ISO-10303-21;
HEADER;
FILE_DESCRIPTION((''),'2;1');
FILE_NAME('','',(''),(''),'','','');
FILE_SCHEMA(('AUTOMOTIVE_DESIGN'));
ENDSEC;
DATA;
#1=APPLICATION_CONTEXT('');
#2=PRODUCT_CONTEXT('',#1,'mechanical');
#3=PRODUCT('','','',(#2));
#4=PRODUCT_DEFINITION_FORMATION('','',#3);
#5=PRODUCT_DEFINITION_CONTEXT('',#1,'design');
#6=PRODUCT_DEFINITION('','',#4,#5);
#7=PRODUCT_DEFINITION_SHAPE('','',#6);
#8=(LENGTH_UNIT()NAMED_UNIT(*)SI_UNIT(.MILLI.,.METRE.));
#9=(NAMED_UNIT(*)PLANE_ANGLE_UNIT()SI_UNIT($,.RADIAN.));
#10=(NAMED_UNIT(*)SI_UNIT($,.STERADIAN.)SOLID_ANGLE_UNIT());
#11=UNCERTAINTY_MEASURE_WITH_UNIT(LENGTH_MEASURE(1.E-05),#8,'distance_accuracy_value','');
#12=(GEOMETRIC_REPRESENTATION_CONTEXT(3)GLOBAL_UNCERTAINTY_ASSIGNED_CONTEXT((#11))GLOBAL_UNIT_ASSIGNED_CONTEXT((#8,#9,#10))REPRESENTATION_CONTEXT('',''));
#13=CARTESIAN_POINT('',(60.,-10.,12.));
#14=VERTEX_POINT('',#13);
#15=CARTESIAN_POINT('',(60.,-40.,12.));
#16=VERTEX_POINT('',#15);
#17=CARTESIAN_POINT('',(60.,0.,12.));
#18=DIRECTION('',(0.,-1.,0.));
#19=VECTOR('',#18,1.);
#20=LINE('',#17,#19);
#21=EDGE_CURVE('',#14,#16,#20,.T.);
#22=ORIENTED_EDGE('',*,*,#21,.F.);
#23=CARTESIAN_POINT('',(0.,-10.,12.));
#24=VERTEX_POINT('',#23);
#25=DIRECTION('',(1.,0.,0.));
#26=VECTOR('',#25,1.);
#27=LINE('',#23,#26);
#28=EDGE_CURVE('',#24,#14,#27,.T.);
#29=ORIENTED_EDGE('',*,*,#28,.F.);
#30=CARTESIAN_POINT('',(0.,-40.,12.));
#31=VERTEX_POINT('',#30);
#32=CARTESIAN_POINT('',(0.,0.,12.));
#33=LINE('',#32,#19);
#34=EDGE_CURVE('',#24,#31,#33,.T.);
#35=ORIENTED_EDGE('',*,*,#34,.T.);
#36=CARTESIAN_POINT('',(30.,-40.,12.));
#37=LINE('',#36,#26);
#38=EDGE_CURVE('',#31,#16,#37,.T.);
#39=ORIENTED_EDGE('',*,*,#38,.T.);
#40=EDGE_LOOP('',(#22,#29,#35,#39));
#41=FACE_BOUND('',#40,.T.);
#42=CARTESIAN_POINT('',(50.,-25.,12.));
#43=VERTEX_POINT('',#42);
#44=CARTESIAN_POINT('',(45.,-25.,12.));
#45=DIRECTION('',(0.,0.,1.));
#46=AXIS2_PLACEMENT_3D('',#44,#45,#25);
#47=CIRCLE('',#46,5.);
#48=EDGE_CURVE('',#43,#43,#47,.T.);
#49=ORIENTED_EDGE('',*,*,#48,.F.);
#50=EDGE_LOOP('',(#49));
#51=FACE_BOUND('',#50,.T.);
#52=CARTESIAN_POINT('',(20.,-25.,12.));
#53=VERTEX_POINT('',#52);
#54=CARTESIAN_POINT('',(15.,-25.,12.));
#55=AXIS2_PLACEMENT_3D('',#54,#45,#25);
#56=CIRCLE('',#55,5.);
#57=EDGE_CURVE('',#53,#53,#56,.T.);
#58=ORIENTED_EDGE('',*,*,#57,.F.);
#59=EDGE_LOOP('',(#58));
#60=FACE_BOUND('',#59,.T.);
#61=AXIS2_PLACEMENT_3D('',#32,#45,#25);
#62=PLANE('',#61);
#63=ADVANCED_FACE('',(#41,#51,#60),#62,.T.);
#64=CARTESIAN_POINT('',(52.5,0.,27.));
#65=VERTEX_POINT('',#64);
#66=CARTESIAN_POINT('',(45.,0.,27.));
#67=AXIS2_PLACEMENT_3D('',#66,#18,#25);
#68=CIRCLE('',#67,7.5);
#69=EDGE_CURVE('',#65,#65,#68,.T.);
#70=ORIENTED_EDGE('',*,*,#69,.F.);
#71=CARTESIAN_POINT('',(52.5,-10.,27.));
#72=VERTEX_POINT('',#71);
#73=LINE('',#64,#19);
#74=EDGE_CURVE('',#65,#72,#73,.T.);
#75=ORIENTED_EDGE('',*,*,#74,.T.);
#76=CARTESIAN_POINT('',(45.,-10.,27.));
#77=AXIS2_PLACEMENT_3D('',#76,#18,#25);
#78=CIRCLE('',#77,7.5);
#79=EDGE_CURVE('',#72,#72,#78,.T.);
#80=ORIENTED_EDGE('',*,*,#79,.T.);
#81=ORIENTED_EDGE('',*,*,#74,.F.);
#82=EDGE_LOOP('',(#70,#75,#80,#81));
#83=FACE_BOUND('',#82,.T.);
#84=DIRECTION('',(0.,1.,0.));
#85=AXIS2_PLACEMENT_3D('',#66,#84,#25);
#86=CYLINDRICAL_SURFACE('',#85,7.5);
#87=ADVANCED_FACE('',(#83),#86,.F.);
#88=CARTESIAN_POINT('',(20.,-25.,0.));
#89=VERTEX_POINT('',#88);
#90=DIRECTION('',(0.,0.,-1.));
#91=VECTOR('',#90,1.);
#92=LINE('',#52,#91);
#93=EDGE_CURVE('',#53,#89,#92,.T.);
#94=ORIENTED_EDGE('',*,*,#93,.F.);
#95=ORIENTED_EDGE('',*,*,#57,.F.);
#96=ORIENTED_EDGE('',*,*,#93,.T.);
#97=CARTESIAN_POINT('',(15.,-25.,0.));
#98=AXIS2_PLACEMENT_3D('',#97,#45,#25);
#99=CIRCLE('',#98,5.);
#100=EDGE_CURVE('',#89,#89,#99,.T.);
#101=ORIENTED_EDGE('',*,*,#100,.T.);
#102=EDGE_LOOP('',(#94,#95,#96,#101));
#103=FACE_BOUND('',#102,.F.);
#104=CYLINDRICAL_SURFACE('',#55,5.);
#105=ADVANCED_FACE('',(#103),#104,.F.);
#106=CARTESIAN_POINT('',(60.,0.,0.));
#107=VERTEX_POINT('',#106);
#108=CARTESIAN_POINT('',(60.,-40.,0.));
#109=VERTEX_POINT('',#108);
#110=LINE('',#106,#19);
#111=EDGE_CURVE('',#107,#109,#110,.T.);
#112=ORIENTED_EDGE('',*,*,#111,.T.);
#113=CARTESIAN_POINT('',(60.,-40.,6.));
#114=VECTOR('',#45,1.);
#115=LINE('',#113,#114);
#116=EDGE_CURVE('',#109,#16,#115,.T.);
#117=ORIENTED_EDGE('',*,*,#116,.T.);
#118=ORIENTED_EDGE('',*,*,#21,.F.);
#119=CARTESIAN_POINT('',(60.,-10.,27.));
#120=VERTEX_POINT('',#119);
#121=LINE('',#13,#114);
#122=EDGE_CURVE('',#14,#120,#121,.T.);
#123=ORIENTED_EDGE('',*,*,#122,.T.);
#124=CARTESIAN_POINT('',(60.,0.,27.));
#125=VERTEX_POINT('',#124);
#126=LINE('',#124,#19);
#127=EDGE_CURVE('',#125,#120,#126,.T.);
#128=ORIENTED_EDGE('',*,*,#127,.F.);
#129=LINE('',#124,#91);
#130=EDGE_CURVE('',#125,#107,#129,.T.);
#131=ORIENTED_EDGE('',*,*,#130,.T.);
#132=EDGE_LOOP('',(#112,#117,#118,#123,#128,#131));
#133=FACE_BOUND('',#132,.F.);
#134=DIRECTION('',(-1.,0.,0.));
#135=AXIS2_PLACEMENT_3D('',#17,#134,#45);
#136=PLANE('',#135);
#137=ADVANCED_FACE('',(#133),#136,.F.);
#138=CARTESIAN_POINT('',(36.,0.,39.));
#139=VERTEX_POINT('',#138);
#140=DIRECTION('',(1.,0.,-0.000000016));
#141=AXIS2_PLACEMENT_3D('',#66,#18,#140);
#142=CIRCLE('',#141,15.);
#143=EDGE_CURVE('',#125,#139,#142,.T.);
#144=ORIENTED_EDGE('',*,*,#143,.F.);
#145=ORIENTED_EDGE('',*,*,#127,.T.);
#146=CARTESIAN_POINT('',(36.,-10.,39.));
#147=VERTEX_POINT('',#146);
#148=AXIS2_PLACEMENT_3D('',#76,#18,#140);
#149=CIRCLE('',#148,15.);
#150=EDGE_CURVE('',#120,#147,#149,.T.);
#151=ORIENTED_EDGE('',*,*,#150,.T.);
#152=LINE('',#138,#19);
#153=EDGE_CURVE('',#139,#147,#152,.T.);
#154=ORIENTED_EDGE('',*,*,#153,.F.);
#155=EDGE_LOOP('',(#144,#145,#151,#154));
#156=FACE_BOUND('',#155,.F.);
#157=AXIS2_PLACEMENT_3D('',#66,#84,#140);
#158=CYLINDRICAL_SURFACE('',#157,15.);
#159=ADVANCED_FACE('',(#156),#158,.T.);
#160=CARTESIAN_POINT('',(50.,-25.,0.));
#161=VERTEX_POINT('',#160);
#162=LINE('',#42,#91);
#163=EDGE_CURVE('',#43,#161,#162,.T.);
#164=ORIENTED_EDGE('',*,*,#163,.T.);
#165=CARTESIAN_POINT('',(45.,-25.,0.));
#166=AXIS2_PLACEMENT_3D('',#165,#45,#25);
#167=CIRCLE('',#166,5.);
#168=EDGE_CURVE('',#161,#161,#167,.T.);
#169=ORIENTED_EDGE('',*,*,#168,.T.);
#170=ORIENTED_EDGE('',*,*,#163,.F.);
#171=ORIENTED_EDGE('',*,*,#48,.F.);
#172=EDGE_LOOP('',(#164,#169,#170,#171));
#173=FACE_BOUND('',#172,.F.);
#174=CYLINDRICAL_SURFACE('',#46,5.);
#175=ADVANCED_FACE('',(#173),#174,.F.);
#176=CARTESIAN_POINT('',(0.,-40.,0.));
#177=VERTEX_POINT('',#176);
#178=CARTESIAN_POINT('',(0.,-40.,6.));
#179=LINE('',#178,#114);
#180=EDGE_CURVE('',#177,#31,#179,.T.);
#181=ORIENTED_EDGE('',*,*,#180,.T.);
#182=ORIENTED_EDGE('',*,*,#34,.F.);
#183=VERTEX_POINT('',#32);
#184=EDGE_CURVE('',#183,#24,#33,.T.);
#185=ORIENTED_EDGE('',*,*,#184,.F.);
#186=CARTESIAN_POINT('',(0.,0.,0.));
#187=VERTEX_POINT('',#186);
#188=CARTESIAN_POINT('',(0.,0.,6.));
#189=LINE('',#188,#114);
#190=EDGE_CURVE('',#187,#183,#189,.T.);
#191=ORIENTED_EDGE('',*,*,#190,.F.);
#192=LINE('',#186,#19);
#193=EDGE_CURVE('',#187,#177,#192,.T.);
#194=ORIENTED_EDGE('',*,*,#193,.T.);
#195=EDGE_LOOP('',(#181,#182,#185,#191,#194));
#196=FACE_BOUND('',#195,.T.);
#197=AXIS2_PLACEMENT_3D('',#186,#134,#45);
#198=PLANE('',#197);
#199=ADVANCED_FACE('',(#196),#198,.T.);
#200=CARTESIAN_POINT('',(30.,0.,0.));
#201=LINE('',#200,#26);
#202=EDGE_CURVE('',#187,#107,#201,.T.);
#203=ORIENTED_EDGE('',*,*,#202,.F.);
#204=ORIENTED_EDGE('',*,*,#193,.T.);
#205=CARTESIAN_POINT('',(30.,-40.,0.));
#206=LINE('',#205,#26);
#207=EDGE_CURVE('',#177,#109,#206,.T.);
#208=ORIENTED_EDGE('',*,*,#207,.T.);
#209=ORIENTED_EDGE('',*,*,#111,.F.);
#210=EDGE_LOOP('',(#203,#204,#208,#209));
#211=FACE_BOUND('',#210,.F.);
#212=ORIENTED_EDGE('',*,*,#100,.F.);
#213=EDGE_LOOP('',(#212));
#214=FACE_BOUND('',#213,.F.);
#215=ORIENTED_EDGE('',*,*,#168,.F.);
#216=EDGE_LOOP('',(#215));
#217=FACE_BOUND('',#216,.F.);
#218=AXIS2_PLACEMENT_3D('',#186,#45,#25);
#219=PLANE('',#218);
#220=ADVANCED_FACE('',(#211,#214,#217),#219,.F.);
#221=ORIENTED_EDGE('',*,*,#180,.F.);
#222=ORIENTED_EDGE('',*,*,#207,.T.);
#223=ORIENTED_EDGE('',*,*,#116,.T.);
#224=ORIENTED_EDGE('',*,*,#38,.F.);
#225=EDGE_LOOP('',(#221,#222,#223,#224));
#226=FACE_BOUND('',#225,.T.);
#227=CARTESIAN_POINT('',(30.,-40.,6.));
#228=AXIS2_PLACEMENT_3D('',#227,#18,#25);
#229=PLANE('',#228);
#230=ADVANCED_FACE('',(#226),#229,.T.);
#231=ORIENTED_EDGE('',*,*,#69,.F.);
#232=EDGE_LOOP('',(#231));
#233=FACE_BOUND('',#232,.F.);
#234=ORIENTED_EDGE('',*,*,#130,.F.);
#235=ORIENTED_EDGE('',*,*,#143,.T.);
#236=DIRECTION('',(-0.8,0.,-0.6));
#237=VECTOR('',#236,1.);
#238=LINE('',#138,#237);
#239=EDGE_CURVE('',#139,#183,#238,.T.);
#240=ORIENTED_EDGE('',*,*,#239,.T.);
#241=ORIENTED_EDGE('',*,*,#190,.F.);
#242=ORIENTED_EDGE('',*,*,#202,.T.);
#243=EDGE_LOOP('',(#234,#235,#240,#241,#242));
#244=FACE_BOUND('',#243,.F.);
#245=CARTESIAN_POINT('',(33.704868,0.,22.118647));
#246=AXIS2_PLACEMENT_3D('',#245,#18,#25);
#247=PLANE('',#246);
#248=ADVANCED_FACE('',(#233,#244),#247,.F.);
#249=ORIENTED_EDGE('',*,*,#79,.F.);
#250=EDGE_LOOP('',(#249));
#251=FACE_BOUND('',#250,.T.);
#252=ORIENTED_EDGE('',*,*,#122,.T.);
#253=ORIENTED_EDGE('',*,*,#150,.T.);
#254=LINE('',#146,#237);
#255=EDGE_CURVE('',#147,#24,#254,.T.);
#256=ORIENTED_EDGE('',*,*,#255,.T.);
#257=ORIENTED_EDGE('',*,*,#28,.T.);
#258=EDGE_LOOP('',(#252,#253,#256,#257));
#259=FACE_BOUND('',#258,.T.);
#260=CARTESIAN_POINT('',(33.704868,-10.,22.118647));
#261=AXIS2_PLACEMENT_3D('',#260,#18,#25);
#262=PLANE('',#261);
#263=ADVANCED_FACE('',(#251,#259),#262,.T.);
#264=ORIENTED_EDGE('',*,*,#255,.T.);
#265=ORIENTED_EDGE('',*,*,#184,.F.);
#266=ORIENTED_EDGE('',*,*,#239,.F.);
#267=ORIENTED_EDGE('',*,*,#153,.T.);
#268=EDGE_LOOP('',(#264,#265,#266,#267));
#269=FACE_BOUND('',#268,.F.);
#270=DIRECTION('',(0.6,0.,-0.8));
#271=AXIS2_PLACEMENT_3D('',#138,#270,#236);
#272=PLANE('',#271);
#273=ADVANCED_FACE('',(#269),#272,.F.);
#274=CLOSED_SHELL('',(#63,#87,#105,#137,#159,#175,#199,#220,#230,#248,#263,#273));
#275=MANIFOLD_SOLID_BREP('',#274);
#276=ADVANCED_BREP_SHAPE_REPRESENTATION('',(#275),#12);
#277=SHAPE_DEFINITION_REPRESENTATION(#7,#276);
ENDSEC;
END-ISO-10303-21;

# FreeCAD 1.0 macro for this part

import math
import FreeCAD as App
import Part
import Sketcher
from FreeCAD import Vector
Q = App.Units.Quantity

doc = App.newDocument("Part")
body = doc.addObject("PartDesign::Body", "Body")

sketch1 = body.newObject("Sketcher::SketchObject", "Sketch")
sketch1.AttachmentSupport = (doc.getObject("XZ_Plane"), [""])
sketch1.MapMode = "FlatFace"
sketch1.addGeometry([
    Part.LineSegment(Vector(0, 12, 0), Vector(0, 0, 0)),
    Part.LineSegment(Vector(0, 0, 0), Vector(60, 0, 0)),
    Part.LineSegment(Vector(60, 0, 0), Vector(60, 12, 0)),
    Part.LineSegment(Vector(60, 12, 0), Vector(0, 12, 0)),
], False)
sketch1.addConstraint([
    Sketcher.Constraint("Coincident", 0, 2, 1, 1),
    Sketcher.Constraint("Coincident", 1, 2, 2, 1),
    Sketcher.Constraint("Coincident", 2, 2, 3, 1),
    Sketcher.Constraint("Coincident", 3, 2, 0, 1),
    Sketcher.Constraint("Vertical", 0),
    Sketcher.Constraint("Horizontal", 1),
    Sketcher.Constraint("Vertical", 2),
    Sketcher.Constraint("Horizontal", 3),
    Sketcher.Constraint("Coincident", 0, 2, -1, 1),
    Sketcher.Constraint("DistanceX", 1, 1, 1, 2, Q("60 mm")),
    Sketcher.Constraint("DistanceY", 0, 2, 0, 1, Q("12 mm")),
])
pad1 = body.newObject("PartDesign::Pad", "Pad")
pad1.Profile = sketch1
pad1.Length = 40

sketch2 = body.newObject("Sketcher::SketchObject", "Sketch001")
sketch2.AttachmentSupport = (doc.getObject("XZ_Plane"), [""])
sketch2.MapMode = "FlatFace"
sketch2.addGeometry([
    Part.LineSegment(Vector(36, 39, 0), Vector(0, 12, 0)),
    Part.LineSegment(Vector(0, 12, 0), Vector(60, 12, 0)),
    Part.LineSegment(Vector(60, 12, 0), Vector(60, 27, 0)),
    Part.ArcOfCircle(Part.Circle(Vector(45, 27, 0), Vector(0, 0, 1), 15), math.radians(-0.000001), math.radians(126.869899)),
    Part.Circle(Vector(45, 27, 0), Vector(0, 0, 1), 7.5),
], False)
sketch2.addConstraint([
    Sketcher.Constraint("Coincident", 0, 2, 1, 1),
    Sketcher.Constraint("Coincident", 1, 2, 2, 1),
    Sketcher.Constraint("Tangent", 2, 2, 3, 1),
    Sketcher.Constraint("Tangent", 3, 2, 0, 1),
    Sketcher.Constraint("Horizontal", 1),
    Sketcher.Constraint("Vertical", 2),
    Sketcher.Constraint("Coincident", 4, 3, 3, 3),
    Sketcher.Constraint("PointOnObject", 0, 2, -2),
    Sketcher.Constraint("Diameter", 4, Q("15 mm")),
    Sketcher.Constraint("Radius", 3, Q("15 mm")),
    Sketcher.Constraint("DistanceX", 1, 1, 1, 2, Q("60 mm")),
    Sketcher.Constraint("DistanceY", 2, 1, 2, 2, Q("15 mm")),
    Sketcher.Constraint("DistanceY", -1, 1, 3, 3, Q("27 mm")),
])
pad2 = body.newObject("PartDesign::Pad", "Pad001")
pad2.Profile = sketch2
pad2.Length = 10

sketch3 = body.newObject("Sketcher::SketchObject", "Sketch002")
sketch3.AttachmentSupport = (doc.getObject("XY_Plane"), [""])
sketch3.MapMode = "FlatFace"
sketch3.AttachmentOffset = App.Placement(Vector(0, 0, 12), App.Rotation())
sketch3.addGeometry([
    Part.Circle(Vector(15, -25, 0), Vector(0, 0, 1), 5),
    Part.Circle(Vector(45, -25, 0), Vector(0, 0, 1), 5),
], False)
sketch3.addConstraint([
    Sketcher.Constraint("Equal", 0, 1),
    Sketcher.Constraint("Horizontal", 0, 3, 1, 3),
    Sketcher.Constraint("Diameter", 0, Q("10 mm")),
    Sketcher.Constraint("DistanceX", -1, 1, 0, 3, Q("15 mm")),
    Sketcher.Constraint("DistanceY", 0, 3, -1, 1, Q("25 mm")),
    Sketcher.Constraint("DistanceX", -1, 1, 1, 3, Q("45 mm")),
])
pocket1 = body.newObject("PartDesign::Pocket", "Pocket")
pocket1.Profile = sketch3
pocket1.Type = "ThroughAll"

doc.recompute()
